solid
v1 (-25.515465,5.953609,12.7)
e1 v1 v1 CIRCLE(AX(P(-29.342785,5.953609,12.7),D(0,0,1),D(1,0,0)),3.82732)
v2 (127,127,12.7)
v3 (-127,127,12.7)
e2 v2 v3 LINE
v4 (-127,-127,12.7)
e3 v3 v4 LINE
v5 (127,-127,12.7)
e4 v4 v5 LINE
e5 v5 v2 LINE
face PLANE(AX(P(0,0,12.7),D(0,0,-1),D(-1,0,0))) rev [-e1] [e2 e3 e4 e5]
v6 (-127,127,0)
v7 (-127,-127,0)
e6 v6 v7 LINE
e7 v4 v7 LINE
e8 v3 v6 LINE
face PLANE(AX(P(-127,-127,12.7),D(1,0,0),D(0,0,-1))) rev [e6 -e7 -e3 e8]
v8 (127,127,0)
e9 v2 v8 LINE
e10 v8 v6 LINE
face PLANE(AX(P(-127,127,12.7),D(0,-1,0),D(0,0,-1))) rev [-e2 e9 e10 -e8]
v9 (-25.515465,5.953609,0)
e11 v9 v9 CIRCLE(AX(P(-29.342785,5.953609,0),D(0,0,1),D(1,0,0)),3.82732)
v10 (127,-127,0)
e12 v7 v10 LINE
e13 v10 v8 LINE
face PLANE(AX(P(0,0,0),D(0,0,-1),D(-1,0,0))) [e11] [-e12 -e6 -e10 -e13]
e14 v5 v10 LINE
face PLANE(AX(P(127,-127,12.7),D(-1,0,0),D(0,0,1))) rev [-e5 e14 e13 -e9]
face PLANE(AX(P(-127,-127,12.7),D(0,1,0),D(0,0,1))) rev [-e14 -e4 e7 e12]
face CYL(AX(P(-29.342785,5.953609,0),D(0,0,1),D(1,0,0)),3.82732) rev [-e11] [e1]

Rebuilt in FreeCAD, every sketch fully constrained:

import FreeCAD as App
import Part
import Sketcher

V = App.Vector
Q = App.Units.Quantity

doc = App.newDocument("Part")
params = doc.addObject("Spreadsheet::Sheet", "Params")
for row, (alias, value) in enumerate([
    ("sketch1_width", "10 in"),
    ("pad1_length", "0.5 in"),
], start=1):
    params.set(f"A{row}", alias)
    params.set(f"B{row}", "=" + value)
    params.setAlias(f"B{row}", alias)

body = doc.addObject("PartDesign::Body", "Body")

# Sketch on XY plane
sketch1 = body.newObject("Sketcher::SketchObject", "Sketch")
sketch1.AttachmentSupport = (doc.getObject("XY_Plane"), [""])
sketch1.MapMode = "FlatFace"
sketch1.addGeometry(Part.LineSegment(V(-127, 127, 0), V(-127, -127, 0)), False)
sketch1.addGeometry(Part.LineSegment(V(-127, -127, 0), V(127, -127, 0)), False)
sketch1.addGeometry(Part.LineSegment(V(127, -127, 0), V(127, 127, 0)), False)
sketch1.addGeometry(Part.LineSegment(V(127, 127, 0), V(-127, 127, 0)), False)
sketch1.addConstraint(Sketcher.Constraint("Coincident", 0, 2, 1, 1))
sketch1.addConstraint(Sketcher.Constraint("Coincident", 1, 2, 2, 1))
sketch1.addConstraint(Sketcher.Constraint("Coincident", 2, 2, 3, 1))
sketch1.addConstraint(Sketcher.Constraint("Coincident", 3, 2, 0, 1))
sketch1.addConstraint(Sketcher.Constraint("Vertical", 0))
sketch1.addConstraint(Sketcher.Constraint("Horizontal", 1))
sketch1.addConstraint(Sketcher.Constraint("Vertical", 2))
sketch1.addConstraint(Sketcher.Constraint("Horizontal", 3))
sketch1.addConstraint(Sketcher.Constraint("Symmetric", 0, 2, 2, 2, -1, 1))
sketch1.addConstraint(Sketcher.Constraint("Equal", 3, 0))
sketch1.addConstraint(Sketcher.Constraint("DistanceX", 1, 1, 1, 2, Q("10 in")))
sketch1.setExpression("Constraints[10]", "Params.sketch1_width")
pad1 = body.newObject("PartDesign::Pad", "Pad")
pad1.Profile = sketch1
pad1.setExpression("Length", "Params.pad1_length")

# Sketch on XY plane
sketch2 = body.newObject("Sketcher::SketchObject", "Sketch001")
sketch2.AttachmentSupport = (doc.getObject("XY_Plane"), [""])
sketch2.MapMode = "FlatFace"
sketch2.AttachmentOffset = App.Placement(V(0, 0, 0.5 * 25.4), App.Rotation())
sketch2.addGeometry(Part.Circle(V(-29.3, 6, 0), V(0, 0, 1), 3.8), False)
sketch2.addConstraint(Sketcher.Constraint("Diameter", 0, 7.65464))
sketch2.addConstraint(Sketcher.Constraint("DistanceY", -1, 1, 0, 3, 5.953609))
sketch2.addConstraint(Sketcher.Constraint("DistanceX", 0, 3, -1, 1, 29.342785))
pocket1 = body.newObject("PartDesign::Pocket", "Pocket")
pocket1.Profile = sketch2
pocket1.Type = "ThroughAll"

doc.recompute()
